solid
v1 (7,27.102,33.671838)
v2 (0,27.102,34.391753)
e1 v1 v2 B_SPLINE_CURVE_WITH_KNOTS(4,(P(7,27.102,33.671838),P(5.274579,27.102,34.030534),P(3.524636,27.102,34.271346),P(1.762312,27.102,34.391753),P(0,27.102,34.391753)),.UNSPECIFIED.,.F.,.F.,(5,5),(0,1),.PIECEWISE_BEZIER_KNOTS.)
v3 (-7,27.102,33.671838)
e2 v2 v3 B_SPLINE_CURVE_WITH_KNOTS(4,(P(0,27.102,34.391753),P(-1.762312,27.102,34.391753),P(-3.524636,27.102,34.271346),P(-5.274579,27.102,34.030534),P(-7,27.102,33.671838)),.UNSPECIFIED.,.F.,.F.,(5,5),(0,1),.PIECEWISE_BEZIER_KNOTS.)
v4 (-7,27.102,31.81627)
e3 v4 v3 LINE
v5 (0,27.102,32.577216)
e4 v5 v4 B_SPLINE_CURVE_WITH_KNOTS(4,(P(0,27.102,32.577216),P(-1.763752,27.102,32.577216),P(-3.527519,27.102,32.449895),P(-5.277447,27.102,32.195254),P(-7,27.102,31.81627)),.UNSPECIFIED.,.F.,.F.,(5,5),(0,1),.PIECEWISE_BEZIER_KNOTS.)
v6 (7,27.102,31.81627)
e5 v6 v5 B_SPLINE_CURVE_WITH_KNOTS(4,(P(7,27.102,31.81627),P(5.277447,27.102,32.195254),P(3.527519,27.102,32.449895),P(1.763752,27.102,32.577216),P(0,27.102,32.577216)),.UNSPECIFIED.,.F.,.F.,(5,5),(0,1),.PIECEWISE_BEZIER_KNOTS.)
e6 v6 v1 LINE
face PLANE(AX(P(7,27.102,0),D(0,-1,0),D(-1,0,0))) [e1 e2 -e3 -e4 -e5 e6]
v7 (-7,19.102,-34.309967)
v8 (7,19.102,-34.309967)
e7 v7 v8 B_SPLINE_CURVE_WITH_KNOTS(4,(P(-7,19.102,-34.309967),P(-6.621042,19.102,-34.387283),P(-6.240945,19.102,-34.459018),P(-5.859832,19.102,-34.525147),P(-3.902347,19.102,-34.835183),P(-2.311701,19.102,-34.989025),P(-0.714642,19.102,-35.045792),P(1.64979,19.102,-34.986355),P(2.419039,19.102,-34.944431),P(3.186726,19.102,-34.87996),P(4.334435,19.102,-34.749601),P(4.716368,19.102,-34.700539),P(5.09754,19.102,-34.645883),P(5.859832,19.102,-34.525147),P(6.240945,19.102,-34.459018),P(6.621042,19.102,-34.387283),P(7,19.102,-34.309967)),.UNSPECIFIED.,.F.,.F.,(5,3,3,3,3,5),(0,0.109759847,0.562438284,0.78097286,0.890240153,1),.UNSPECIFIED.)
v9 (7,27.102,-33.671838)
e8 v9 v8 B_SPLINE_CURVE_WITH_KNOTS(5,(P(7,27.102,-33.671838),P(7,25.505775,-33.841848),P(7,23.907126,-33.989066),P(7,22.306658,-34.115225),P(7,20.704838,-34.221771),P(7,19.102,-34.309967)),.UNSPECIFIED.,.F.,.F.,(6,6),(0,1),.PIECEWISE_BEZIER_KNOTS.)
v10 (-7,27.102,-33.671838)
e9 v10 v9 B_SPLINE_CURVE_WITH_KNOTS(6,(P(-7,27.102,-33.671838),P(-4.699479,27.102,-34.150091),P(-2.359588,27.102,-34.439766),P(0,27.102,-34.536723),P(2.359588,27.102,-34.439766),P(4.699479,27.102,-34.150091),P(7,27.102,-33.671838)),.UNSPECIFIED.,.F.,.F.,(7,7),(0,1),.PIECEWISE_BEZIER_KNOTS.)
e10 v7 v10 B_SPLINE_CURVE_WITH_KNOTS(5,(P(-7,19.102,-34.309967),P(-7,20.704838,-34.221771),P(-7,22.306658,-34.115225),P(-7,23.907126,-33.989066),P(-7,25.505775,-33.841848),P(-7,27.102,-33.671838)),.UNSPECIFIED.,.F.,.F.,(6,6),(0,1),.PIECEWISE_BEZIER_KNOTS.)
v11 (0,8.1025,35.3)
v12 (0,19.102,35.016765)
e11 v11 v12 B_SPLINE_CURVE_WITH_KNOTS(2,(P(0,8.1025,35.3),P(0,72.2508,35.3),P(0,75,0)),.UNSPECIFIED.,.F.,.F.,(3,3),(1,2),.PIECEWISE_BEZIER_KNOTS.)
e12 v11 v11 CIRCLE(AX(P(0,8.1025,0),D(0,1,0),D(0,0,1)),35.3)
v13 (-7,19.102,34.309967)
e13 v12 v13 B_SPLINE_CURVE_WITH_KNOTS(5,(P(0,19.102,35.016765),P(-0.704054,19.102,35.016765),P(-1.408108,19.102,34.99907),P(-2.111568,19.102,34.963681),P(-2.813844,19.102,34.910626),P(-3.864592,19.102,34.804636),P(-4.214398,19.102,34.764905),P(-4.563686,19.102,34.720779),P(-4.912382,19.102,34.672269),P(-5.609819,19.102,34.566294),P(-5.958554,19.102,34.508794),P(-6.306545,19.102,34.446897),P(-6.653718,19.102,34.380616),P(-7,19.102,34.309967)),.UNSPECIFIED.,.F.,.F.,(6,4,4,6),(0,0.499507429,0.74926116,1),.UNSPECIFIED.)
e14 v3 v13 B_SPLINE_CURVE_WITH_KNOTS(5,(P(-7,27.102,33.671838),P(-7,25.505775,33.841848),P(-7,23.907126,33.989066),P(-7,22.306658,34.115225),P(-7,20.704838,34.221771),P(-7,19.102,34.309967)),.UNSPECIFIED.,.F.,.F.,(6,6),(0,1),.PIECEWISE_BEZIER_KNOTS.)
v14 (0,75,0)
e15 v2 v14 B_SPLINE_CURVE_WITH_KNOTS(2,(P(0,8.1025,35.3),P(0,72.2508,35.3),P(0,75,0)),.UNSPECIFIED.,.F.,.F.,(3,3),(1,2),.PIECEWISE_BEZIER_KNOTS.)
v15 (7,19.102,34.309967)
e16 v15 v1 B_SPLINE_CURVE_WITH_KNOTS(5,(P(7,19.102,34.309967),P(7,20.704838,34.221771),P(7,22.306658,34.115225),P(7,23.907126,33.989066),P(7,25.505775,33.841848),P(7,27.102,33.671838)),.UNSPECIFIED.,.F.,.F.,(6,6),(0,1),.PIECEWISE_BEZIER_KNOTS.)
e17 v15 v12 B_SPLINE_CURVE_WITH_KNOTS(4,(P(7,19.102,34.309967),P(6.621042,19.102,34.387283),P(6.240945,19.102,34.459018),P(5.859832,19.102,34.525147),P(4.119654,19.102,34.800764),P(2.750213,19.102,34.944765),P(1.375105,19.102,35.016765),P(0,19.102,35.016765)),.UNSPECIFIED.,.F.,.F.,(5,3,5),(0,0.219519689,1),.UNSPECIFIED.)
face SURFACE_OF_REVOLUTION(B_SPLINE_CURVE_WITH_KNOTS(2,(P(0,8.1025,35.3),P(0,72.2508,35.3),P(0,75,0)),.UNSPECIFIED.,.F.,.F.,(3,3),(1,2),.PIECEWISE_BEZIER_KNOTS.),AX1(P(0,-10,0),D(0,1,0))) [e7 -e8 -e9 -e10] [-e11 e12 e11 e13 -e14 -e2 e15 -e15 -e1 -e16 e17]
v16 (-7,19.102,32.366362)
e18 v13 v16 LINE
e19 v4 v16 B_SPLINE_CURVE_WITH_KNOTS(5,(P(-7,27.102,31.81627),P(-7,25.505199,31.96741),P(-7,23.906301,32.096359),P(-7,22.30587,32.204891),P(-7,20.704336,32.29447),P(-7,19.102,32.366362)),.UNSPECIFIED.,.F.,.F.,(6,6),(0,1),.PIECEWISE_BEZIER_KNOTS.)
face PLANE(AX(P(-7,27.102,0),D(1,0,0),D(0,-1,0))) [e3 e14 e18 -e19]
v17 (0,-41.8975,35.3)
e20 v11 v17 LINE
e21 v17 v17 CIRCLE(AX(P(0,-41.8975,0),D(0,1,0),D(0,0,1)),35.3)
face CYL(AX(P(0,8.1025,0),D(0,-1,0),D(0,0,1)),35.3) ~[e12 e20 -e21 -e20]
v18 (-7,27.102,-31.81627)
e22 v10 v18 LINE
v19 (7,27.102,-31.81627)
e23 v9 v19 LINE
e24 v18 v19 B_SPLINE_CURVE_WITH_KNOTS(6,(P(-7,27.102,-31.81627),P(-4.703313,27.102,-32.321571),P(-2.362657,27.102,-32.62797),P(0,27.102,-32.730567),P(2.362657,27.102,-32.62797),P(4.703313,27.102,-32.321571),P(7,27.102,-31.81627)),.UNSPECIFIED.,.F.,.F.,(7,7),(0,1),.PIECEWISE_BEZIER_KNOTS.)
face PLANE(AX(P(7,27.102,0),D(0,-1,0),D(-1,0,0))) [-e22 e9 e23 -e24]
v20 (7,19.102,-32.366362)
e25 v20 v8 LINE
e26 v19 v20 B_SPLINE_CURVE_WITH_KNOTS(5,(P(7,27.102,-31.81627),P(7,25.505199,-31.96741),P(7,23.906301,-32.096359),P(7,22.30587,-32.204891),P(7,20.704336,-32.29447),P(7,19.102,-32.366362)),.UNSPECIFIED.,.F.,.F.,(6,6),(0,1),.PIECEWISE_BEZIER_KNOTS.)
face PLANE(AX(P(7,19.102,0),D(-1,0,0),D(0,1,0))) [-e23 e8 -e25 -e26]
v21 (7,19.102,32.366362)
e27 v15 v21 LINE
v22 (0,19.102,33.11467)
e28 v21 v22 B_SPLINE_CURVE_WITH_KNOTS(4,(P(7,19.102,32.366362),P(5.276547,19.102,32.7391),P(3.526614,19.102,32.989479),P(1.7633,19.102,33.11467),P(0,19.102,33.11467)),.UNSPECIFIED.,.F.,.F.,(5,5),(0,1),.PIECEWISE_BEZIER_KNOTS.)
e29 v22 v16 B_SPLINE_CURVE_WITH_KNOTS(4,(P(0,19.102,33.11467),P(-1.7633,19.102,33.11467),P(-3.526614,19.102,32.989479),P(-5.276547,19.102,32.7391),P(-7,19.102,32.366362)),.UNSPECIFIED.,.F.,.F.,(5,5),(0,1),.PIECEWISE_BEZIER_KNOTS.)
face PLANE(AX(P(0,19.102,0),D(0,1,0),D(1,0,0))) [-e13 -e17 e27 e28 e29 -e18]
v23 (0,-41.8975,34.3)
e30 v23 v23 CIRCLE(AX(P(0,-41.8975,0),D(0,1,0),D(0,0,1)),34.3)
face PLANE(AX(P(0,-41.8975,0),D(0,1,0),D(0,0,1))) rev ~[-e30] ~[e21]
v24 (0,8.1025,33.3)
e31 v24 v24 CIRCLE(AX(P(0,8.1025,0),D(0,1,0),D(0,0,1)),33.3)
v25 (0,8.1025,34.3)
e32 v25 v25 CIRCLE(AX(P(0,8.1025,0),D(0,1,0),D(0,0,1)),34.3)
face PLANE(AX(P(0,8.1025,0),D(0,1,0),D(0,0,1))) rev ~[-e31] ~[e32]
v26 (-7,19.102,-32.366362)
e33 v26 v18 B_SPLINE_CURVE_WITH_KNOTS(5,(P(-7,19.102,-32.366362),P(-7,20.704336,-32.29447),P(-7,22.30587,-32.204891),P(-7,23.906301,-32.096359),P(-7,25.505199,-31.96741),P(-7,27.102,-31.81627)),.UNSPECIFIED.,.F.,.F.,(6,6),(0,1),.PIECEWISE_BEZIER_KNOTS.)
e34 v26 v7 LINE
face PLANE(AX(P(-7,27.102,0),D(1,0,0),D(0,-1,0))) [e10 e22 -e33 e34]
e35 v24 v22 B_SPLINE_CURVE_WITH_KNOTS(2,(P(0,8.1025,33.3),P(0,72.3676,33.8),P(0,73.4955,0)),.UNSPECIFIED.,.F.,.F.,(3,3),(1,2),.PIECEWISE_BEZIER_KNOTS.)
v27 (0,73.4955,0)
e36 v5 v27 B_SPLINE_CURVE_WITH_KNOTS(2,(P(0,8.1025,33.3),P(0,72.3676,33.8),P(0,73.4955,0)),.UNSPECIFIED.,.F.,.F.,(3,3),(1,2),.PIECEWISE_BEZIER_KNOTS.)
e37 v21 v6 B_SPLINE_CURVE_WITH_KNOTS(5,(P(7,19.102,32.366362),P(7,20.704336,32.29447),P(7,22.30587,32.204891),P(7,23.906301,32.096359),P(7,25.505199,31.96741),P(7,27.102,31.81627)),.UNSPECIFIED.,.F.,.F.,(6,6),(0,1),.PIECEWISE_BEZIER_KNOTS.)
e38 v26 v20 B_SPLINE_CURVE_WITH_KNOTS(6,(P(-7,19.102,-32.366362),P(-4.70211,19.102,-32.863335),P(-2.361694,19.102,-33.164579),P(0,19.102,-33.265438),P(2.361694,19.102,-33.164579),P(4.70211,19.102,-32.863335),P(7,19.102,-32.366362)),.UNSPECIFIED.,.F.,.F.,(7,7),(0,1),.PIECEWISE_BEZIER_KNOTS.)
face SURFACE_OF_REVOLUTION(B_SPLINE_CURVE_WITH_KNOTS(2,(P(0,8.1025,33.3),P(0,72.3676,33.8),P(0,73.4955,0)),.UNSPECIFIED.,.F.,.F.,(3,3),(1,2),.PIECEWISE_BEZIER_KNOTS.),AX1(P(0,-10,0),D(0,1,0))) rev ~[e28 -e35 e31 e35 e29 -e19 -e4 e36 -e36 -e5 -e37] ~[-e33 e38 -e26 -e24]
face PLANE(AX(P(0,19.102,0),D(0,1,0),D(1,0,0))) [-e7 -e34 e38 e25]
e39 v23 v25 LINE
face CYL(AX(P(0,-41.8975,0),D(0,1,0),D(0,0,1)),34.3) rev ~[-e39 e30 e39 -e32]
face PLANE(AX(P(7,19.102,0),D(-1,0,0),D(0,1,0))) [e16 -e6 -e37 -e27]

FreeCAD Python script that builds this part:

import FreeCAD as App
import Part
import Sketcher

doc = App.newDocument("Part")
body = doc.addObject("PartDesign::Body", "Body")

sketch1 = doc.addObject("Sketcher::SketchObject", "Sketch")
body.addObject(sketch1)
sketch1.AttachmentSupport = (doc.YZ_Plane, [""])
sketch1.MapMode = "FlatFace"
sketch1.addGeometry([
    Part.LineSegment(App.Vector(8.1025, 34.3, 0), App.Vector(8.1025, 33.3, 0)),
    Part.BSplineCurve([App.Vector(8.1025, 33.3, 0), App.Vector(72.3676, 33.8, 0), App.Vector(73.4955, 0, 0)], [3, 3], [1, 2], False, 2, [1, 1, 1], False),
    Part.LineSegment(App.Vector(73.4955, 0, 0), App.Vector(75, 0, 0)),
    Part.BSplineCurve([App.Vector(8.1025, 35.3, 0), App.Vector(72.2508, 35.3, 0), App.Vector(75, 0, 0)], [3, 3], [1, 2], False, 2, [1, 1, 1], False),
    Part.LineSegment(App.Vector(8.1025, 35.3, 0), App.Vector(-41.8975, 35.3, 0)),
    Part.LineSegment(App.Vector(-41.8975, 35.3, 0), App.Vector(-41.8975, 34.3, 0)),
    Part.LineSegment(App.Vector(-41.8975, 34.3, 0), App.Vector(8.1025, 34.3, 0)),
], False)
sketch1.addConstraint([
    Sketcher.Constraint("Block", 1),
    Sketcher.Constraint("Block", 3),
    Sketcher.Constraint("Coincident", 0, 2, 1, 1),
    Sketcher.Constraint("Coincident", 1, 2, 2, 1),
    Sketcher.Constraint("Coincident", 2, 2, 3, 2),
    Sketcher.Constraint("Coincident", 3, 1, 4, 1),
    Sketcher.Constraint("Coincident", 4, 2, 5, 1),
    Sketcher.Constraint("Coincident", 5, 2, 6, 1),
    Sketcher.Constraint("Coincident", 6, 2, 0, 1),
    Sketcher.Constraint("Vertical", 0),
    Sketcher.Constraint("Horizontal", 4),
    Sketcher.Constraint("Vertical", 5),
    Sketcher.Constraint("Horizontal", 6),
    Sketcher.Constraint("Equal", 0, 5),
    Sketcher.Constraint("DistanceX", 4, 2, 4, 1, 50.0),
])
revolution = doc.addObject("PartDesign::Revolution", "Revolution")
body.addObject(revolution)
revolution.Profile = sketch1
revolution.ReferenceAxis = (sketch1, ["H_Axis"])
revolution.Angle = 360

sketch2 = doc.addObject("Sketcher::SketchObject", "Sketch001")
body.addObject(sketch2)
sketch2.AttachmentSupport = (doc.XY_Plane, [""])
sketch2.MapMode = "FlatFace"
sketch2.addGeometry([
    Part.LineSegment(App.Vector(7, 19, 0), App.Vector(7, 27, 0)),
    Part.LineSegment(App.Vector(7, 27, 0), App.Vector(-7, 27, 0)),
    Part.LineSegment(App.Vector(-7, 27, 0), App.Vector(-7, 19, 0)),
    Part.LineSegment(App.Vector(-7, 19, 0), App.Vector(7, 19, 0)),
], False)
sketch2.addConstraint([
    Sketcher.Constraint("Coincident", 0, 2, 1, 1),
    Sketcher.Constraint("Coincident", 1, 2, 2, 1),
    Sketcher.Constraint("Coincident", 2, 2, 3, 1),
    Sketcher.Constraint("Coincident", 3, 2, 0, 1),
    Sketcher.Constraint("Vertical", 0),
    Sketcher.Constraint("Horizontal", 1),
    Sketcher.Constraint("Vertical", 2),
    Sketcher.Constraint("Horizontal", 3),
    Sketcher.Constraint("DistanceY", 0, 1, 0, 2, 8.0),
    Sketcher.Constraint("DistanceX", -1, 1, 0, 2, 7.0),
    Sketcher.Constraint("DistanceX", 1, 2, -1, 1, 7.0),
    Sketcher.Constraint("DistanceY", -1, 1, 2, 2, 19.102),
])
pocket1 = doc.addObject("PartDesign::Pocket", "Pocket")
body.addObject(pocket1)
pocket1.Profile = sketch2
pocket1.Length = 100
pocket1.Midplane = True

doc.recompute()
